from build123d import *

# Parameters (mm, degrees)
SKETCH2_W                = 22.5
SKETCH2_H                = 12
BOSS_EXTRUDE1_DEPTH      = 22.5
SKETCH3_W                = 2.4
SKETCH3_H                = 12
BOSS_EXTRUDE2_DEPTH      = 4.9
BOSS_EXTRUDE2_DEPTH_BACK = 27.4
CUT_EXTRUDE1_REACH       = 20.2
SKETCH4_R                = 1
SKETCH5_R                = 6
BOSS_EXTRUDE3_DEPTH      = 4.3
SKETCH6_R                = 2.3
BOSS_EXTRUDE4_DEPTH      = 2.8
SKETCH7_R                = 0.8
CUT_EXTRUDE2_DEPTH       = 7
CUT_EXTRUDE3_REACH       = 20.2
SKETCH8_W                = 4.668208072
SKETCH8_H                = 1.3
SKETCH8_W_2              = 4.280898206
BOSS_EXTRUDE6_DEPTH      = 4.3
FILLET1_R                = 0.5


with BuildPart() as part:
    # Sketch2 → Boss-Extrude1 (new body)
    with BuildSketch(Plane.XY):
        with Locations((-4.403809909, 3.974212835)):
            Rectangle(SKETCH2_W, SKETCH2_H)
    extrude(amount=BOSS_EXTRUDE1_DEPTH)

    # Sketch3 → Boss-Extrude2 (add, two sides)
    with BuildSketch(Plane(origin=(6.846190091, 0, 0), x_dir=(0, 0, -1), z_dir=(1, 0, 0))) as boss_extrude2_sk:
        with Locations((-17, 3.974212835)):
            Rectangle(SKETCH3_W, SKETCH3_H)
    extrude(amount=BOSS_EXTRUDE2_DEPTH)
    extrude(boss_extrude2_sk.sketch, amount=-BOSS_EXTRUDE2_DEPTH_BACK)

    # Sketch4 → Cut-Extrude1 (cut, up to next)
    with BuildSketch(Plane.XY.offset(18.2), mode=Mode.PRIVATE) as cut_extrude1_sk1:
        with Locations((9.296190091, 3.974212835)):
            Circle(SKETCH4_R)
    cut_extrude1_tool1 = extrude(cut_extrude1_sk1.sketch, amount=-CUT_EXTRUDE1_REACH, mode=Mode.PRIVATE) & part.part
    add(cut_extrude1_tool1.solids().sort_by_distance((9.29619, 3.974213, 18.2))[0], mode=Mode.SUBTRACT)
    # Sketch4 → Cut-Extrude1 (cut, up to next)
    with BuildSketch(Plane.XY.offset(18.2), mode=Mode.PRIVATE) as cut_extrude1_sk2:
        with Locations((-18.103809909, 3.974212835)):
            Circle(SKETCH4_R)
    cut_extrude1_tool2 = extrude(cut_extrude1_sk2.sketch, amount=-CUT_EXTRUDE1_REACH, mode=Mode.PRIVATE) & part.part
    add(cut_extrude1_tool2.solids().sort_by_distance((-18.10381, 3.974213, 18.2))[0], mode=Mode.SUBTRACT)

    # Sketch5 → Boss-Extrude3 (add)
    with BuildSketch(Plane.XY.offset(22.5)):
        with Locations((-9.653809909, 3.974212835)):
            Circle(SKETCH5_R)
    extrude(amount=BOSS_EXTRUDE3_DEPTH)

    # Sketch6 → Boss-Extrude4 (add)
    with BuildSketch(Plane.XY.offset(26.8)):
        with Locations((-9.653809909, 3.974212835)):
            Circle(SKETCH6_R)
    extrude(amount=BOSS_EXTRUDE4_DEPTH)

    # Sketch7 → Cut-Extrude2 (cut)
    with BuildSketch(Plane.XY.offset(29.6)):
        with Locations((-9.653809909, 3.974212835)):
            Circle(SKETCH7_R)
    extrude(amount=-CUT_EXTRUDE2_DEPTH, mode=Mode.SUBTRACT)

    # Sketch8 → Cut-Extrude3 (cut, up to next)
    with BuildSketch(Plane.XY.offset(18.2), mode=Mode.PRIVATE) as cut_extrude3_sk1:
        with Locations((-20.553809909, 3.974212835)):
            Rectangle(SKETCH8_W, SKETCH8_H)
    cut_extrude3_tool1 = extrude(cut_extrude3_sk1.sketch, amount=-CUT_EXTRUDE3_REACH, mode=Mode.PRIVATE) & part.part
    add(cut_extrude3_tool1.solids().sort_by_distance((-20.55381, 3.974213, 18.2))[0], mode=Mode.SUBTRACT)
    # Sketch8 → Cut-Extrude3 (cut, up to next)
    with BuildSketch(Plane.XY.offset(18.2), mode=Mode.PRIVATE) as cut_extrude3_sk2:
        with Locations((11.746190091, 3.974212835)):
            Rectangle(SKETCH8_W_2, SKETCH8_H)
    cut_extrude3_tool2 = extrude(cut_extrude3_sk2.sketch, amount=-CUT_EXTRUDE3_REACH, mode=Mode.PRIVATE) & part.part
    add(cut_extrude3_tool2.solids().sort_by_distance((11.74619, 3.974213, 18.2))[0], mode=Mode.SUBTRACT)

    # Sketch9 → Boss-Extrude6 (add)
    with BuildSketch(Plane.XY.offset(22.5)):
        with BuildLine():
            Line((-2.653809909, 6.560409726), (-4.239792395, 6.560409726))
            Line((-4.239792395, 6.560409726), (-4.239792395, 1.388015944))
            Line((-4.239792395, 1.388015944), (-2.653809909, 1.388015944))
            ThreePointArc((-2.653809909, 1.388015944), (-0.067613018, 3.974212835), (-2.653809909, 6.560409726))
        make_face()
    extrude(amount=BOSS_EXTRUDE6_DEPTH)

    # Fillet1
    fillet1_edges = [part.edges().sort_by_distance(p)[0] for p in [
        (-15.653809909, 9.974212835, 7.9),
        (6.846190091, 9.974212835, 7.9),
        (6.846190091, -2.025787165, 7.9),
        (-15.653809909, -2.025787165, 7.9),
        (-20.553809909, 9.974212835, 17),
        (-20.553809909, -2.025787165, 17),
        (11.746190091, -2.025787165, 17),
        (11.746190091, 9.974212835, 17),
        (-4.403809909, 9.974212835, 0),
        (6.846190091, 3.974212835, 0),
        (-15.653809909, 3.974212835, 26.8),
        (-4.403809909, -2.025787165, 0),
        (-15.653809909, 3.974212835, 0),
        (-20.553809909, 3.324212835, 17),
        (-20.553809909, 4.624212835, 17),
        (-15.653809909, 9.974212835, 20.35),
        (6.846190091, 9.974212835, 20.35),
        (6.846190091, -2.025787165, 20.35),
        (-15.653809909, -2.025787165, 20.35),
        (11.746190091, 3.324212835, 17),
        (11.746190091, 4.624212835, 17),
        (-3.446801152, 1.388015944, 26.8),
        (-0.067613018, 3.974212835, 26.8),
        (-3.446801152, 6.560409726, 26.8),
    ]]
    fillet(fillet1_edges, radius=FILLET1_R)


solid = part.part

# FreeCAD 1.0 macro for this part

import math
import FreeCAD as App
import Part
import Sketcher

V = App.Vector


def edges_at(feature, points):
    """Names of the edges that pass closest to the given points."""
    edges = feature.Shape.Edges
    near = lambda p: min(range(len(edges)), key=lambda i: edges[i].distToShape(Part.Vertex(*p))[0])
    return sorted({f"Edge{near(p) + 1}" for p in points})


def add_polygon(sketch, points):
    """Adds a closed chain of lines whose ends are joined by coincident constraints."""
    first, n = sketch.GeometryCount, len(points)
    for a, b in zip(points, points[1:] + points[:1]):
        sketch.addGeometry(Part.LineSegment(App.Vector(*a, 0), App.Vector(*b, 0)), False)
    for i in range(n):
        sketch.addConstraint(Sketcher.Constraint("Coincident", first + i, 2, first + (i + 1) % n, 1))

doc = App.newDocument("Part")
body = doc.addObject("PartDesign::Body", "Body")

# Sketch on XY plane
sketch1 = body.newObject("Sketcher::SketchObject", "Sketch")
sketch1.AttachmentSupport = (doc.getObject("XY_Plane"), [""])
sketch1.MapMode = "FlatFace"
add_polygon(sketch1, [(-16, 10), (-16, -2), (7, -2), (7, 10)])  # lines 0-3
sketch1.addConstraint([
    Sketcher.Constraint("Vertical", 0),
    Sketcher.Constraint("Horizontal", 1),
    Sketcher.Constraint("Vertical", 2),
    Sketcher.Constraint("Horizontal", 3),
    Sketcher.Constraint("DistanceY", 0, 2, 0, 1, 12.0),
    Sketcher.Constraint("DistanceX", 1, 1, 1, 2, 22.5),
    Sketcher.Constraint("DistanceX", 0, 2, -1, 1, 15.65381),
    Sketcher.Constraint("DistanceY", 0, 2, -1, 1, 2.025787),
])
pad1 = body.newObject("PartDesign::Pad", "Pad")
pad1.Profile = sketch1
pad1.Length = 22.5

# Sketch on YZ plane
sketch2 = body.newObject("Sketcher::SketchObject", "Sketch001")
sketch2.AttachmentSupport = (doc.getObject("YZ_Plane"), [""])
sketch2.MapMode = "FlatFace"
sketch2.AttachmentOffset = App.Placement(V(0, 0, 6.84619), App.Rotation())
add_polygon(sketch2, [(10, 18.2), (-2, 18.2), (-2, 15.8), (10, 15.8)])  # lines 0-3
sketch2.addConstraint([
    Sketcher.Constraint("Horizontal", 0),
    Sketcher.Constraint("Vertical", 1),
    Sketcher.Constraint("Horizontal", 2),
    Sketcher.Constraint("Vertical", 3),
    Sketcher.Constraint("DistanceX", 0, 2, 0, 1, 12.0),
    Sketcher.Constraint("DistanceY", 1, 2, 1, 1, 2.4),
    Sketcher.Constraint("DistanceY", -1, 1, 0, 2, 18.2),
    Sketcher.Constraint("DistanceX", 0, 2, -1, 1, 2.025787),
])
pad2 = body.newObject("PartDesign::Pad", "Pad001")
pad2.Profile = sketch2
pad2.Type = "TwoLengths"
pad2.Length = 4.9
pad2.Length2 = 27.4

# Sketch on XY plane
sketch3 = body.newObject("Sketcher::SketchObject", "Sketch002")
sketch3.AttachmentSupport = (doc.getObject("XY_Plane"), [""])
sketch3.MapMode = "FlatFace"
sketch3.AttachmentOffset = App.Placement(V(0, 0, 18.2), App.Rotation())
sketch3.addGeometry(Part.Circle(V(9.3, 4, 0), V(0, 0, 1), 1), False)
sketch3.addConstraint([
    Sketcher.Constraint("Diameter", 0, 2.0),
    Sketcher.Constraint("DistanceX", -1, 1, 0, 3, 9.29619),
    Sketcher.Constraint("DistanceY", -1, 1, 0, 3, 3.974213),
])
pocket1 = body.newObject("PartDesign::Pocket", "Pocket")
pocket1.Profile = sketch3
pocket1.Type = "UpToFirst"

# Sketch on XY plane
sketch4 = body.newObject("Sketcher::SketchObject", "Sketch003")
sketch4.AttachmentSupport = (doc.getObject("XY_Plane"), [""])
sketch4.MapMode = "FlatFace"
sketch4.AttachmentOffset = App.Placement(V(0, 0, 18.2), App.Rotation())
sketch4.addGeometry(Part.Circle(V(-18.1, 4, 0), V(0, 0, 1), 1), False)
sketch4.addConstraint([
    Sketcher.Constraint("Diameter", 0, 2.0),
    Sketcher.Constraint("DistanceX", 0, 3, -1, 1, 18.10381),
    Sketcher.Constraint("DistanceY", -1, 1, 0, 3, 3.974213),
])
pocket2 = body.newObject("PartDesign::Pocket", "Pocket001")
pocket2.Profile = sketch4
pocket2.Type = "UpToFirst"

# Sketch on XY plane
sketch5 = body.newObject("Sketcher::SketchObject", "Sketch004")
sketch5.AttachmentSupport = (doc.getObject("XY_Plane"), [""])
sketch5.MapMode = "FlatFace"
sketch5.AttachmentOffset = App.Placement(V(0, 0, 22.5), App.Rotation())
sketch5.addGeometry(Part.Circle(V(-10, 4, 0), V(0, 0, 1), 6), False)
sketch5.addConstraint([
    Sketcher.Constraint("Diameter", 0, 12.0),
    Sketcher.Constraint("DistanceX", 0, 3, -1, 1, 9.65381),
    Sketcher.Constraint("DistanceY", -1, 1, 0, 3, 3.974213),
])
pad3 = body.newObject("PartDesign::Pad", "Pad002")
pad3.Profile = sketch5
pad3.Length = 4.3

# Sketch on XY plane
sketch6 = body.newObject("Sketcher::SketchObject", "Sketch005")
sketch6.AttachmentSupport = (doc.getObject("XY_Plane"), [""])
sketch6.MapMode = "FlatFace"
sketch6.AttachmentOffset = App.Placement(V(0, 0, 26.8), App.Rotation())
sketch6.addGeometry(Part.Circle(V(-9.7, 4, 0), V(0, 0, 1), 2.3), False)
sketch6.addConstraint([
    Sketcher.Constraint("Diameter", 0, 4.6),
    Sketcher.Constraint("DistanceX", 0, 3, -1, 1, 9.65381),
    Sketcher.Constraint("DistanceY", -1, 1, 0, 3, 3.974213),
])
pad4 = body.newObject("PartDesign::Pad", "Pad003")
pad4.Profile = sketch6
pad4.Length = 2.8

# Sketch on XY plane
sketch7 = body.newObject("Sketcher::SketchObject", "Sketch006")
sketch7.AttachmentSupport = (doc.getObject("XY_Plane"), [""])
sketch7.MapMode = "FlatFace"
sketch7.AttachmentOffset = App.Placement(V(0, 0, 29.6), App.Rotation())
sketch7.addGeometry(Part.Circle(V(-9.7, 4, 0), V(0, 0, 1), 0.8), False)
sketch7.addConstraint([
    Sketcher.Constraint("Diameter", 0, 1.6),
    Sketcher.Constraint("DistanceX", 0, 3, -1, 1, 9.65381),
    Sketcher.Constraint("DistanceY", -1, 1, 0, 3, 3.974213),
])
pocket3 = body.newObject("PartDesign::Pocket", "Pocket002")
pocket3.Profile = sketch7
pocket3.Length = 7

# Sketch on XY plane
sketch8 = body.newObject("Sketcher::SketchObject", "Sketch007")
sketch8.AttachmentSupport = (doc.getObject("XY_Plane"), [""])
sketch8.MapMode = "FlatFace"
sketch8.AttachmentOffset = App.Placement(V(0, 0, 18.2), App.Rotation())
add_polygon(sketch8, [(-22.9, 4.6), (-22.9, 3.3), (-18.2, 3.3), (-18.2, 4.6)])  # lines 0-3
sketch8.addConstraint([
    Sketcher.Constraint("Vertical", 0),
    Sketcher.Constraint("Horizontal", 1),
    Sketcher.Constraint("Vertical", 2),
    Sketcher.Constraint("Horizontal", 3),
    Sketcher.Constraint("DistanceY", 0, 2, 0, 1, 1.3),
    Sketcher.Constraint("DistanceX", 1, 1, 1, 2, 4.668208),
    Sketcher.Constraint("DistanceX", 0, 2, -1, 1, 22.887914),
    Sketcher.Constraint("DistanceY", -1, 1, 0, 2, 3.324213),
])
pocket4 = body.newObject("PartDesign::Pocket", "Pocket003")
pocket4.Profile = sketch8
pocket4.Type = "UpToFirst"

# Sketch on XY plane
sketch9 = body.newObject("Sketcher::SketchObject", "Sketch008")
sketch9.AttachmentSupport = (doc.getObject("XY_Plane"), [""])
sketch9.MapMode = "FlatFace"
sketch9.AttachmentOffset = App.Placement(V(0, 0, 18.2), App.Rotation())
add_polygon(sketch9, [(9.6, 4.6), (9.6, 3.3), (13.9, 3.3), (13.9, 4.6)])  # lines 0-3
sketch9.addConstraint([
    Sketcher.Constraint("Vertical", 0),
    Sketcher.Constraint("Horizontal", 1),
    Sketcher.Constraint("Vertical", 2),
    Sketcher.Constraint("Horizontal", 3),
    Sketcher.Constraint("DistanceY", 0, 2, 0, 1, 1.3),
    Sketcher.Constraint("DistanceX", 1, 1, 1, 2, 4.280898),
    Sketcher.Constraint("DistanceX", -1, 1, 0, 2, 9.605741),
    Sketcher.Constraint("DistanceY", -1, 1, 0, 2, 3.324213),
])
pocket5 = body.newObject("PartDesign::Pocket", "Pocket004")
pocket5.Profile = sketch9
pocket5.Type = "UpToFirst"

# Sketch on XY plane
sketch10 = body.newObject("Sketcher::SketchObject", "Sketch009")
sketch10.AttachmentSupport = (doc.getObject("XY_Plane"), [""])
sketch10.MapMode = "FlatFace"
sketch10.AttachmentOffset = App.Placement(V(0, 0, 22.5), App.Rotation())
sketch10.addGeometry([
    Part.LineSegment(V(-2.7, 6.6, 0), V(-4.2, 6.6, 0)),
    Part.LineSegment(V(-4.2, 6.6, 0), V(-4.2, 1.4, 0)),
    Part.LineSegment(V(-4.2, 1.4, 0), V(-2.7, 1.4, 0)),
    Part.ArcOfCircle(Part.Circle(V(-2.7, 4, 0), V(0, 0, 1), 2.6), math.radians(-90), math.radians(90)),
], False)
sketch10.addConstraint([
    Sketcher.Constraint("Coincident", 0, 2, 1, 1),
    Sketcher.Constraint("Coincident", 1, 2, 2, 1),
    Sketcher.Constraint("Tangent", 2, 2, 3, 1),
    Sketcher.Constraint("Tangent", 3, 2, 0, 1),
    Sketcher.Constraint("Horizontal", 0),
    Sketcher.Constraint("Vertical", 1),
    Sketcher.Constraint("Horizontal", 2),
    Sketcher.Constraint("Radius", 3, 2.586197),
    Sketcher.Constraint("DistanceX", 0, 2, 0, 1, 1.585982),
    Sketcher.Constraint("DistanceX", 3, 3, -1, 1, 2.65381),
    Sketcher.Constraint("DistanceY", -1, 1, 0, 2, 6.56041),
])
pad5 = body.newObject("PartDesign::Pad", "Pad004")
pad5.Profile = sketch10
pad5.Length = 4.3
doc.recompute()

fillet = body.newObject("PartDesign::Fillet", "Fillet")
fillet.Base = (pad5, edges_at(pad5, [
    (-15.654, 9.974, 7.9),
    (6.846, 9.974, 7.9),
    (6.846, -2.026, 7.9),
    (-15.654, -2.026, 7.9),
    (-20.554, 9.974, 17),
    (-20.554, -2.026, 17),
    (11.746, -2.026, 17),
    (11.746, 9.974, 17),
    (-4.404, 9.974, 0),
    (6.846, 3.974, 0),
    (-15.654, 3.974, 26.8),
    (-4.404, -2.026, 0),
    (-15.654, 3.974, 0),
    (-20.554, 3.324, 17),
    (-20.554, 4.624, 17),
    (-15.654, 9.974, 20.35),
    (6.846, 9.974, 20.35),
    (6.846, -2.026, 20.35),
    (-15.654, -2.026, 20.35),
    (11.746, 3.324, 17),
    (11.746, 4.624, 17),
    (-3.447, 1.388, 26.8),
    (-0.068, 3.974, 26.8),
    (-3.447, 6.56, 26.8),
]))
fillet.Radius = 0.5

doc.recompute()
